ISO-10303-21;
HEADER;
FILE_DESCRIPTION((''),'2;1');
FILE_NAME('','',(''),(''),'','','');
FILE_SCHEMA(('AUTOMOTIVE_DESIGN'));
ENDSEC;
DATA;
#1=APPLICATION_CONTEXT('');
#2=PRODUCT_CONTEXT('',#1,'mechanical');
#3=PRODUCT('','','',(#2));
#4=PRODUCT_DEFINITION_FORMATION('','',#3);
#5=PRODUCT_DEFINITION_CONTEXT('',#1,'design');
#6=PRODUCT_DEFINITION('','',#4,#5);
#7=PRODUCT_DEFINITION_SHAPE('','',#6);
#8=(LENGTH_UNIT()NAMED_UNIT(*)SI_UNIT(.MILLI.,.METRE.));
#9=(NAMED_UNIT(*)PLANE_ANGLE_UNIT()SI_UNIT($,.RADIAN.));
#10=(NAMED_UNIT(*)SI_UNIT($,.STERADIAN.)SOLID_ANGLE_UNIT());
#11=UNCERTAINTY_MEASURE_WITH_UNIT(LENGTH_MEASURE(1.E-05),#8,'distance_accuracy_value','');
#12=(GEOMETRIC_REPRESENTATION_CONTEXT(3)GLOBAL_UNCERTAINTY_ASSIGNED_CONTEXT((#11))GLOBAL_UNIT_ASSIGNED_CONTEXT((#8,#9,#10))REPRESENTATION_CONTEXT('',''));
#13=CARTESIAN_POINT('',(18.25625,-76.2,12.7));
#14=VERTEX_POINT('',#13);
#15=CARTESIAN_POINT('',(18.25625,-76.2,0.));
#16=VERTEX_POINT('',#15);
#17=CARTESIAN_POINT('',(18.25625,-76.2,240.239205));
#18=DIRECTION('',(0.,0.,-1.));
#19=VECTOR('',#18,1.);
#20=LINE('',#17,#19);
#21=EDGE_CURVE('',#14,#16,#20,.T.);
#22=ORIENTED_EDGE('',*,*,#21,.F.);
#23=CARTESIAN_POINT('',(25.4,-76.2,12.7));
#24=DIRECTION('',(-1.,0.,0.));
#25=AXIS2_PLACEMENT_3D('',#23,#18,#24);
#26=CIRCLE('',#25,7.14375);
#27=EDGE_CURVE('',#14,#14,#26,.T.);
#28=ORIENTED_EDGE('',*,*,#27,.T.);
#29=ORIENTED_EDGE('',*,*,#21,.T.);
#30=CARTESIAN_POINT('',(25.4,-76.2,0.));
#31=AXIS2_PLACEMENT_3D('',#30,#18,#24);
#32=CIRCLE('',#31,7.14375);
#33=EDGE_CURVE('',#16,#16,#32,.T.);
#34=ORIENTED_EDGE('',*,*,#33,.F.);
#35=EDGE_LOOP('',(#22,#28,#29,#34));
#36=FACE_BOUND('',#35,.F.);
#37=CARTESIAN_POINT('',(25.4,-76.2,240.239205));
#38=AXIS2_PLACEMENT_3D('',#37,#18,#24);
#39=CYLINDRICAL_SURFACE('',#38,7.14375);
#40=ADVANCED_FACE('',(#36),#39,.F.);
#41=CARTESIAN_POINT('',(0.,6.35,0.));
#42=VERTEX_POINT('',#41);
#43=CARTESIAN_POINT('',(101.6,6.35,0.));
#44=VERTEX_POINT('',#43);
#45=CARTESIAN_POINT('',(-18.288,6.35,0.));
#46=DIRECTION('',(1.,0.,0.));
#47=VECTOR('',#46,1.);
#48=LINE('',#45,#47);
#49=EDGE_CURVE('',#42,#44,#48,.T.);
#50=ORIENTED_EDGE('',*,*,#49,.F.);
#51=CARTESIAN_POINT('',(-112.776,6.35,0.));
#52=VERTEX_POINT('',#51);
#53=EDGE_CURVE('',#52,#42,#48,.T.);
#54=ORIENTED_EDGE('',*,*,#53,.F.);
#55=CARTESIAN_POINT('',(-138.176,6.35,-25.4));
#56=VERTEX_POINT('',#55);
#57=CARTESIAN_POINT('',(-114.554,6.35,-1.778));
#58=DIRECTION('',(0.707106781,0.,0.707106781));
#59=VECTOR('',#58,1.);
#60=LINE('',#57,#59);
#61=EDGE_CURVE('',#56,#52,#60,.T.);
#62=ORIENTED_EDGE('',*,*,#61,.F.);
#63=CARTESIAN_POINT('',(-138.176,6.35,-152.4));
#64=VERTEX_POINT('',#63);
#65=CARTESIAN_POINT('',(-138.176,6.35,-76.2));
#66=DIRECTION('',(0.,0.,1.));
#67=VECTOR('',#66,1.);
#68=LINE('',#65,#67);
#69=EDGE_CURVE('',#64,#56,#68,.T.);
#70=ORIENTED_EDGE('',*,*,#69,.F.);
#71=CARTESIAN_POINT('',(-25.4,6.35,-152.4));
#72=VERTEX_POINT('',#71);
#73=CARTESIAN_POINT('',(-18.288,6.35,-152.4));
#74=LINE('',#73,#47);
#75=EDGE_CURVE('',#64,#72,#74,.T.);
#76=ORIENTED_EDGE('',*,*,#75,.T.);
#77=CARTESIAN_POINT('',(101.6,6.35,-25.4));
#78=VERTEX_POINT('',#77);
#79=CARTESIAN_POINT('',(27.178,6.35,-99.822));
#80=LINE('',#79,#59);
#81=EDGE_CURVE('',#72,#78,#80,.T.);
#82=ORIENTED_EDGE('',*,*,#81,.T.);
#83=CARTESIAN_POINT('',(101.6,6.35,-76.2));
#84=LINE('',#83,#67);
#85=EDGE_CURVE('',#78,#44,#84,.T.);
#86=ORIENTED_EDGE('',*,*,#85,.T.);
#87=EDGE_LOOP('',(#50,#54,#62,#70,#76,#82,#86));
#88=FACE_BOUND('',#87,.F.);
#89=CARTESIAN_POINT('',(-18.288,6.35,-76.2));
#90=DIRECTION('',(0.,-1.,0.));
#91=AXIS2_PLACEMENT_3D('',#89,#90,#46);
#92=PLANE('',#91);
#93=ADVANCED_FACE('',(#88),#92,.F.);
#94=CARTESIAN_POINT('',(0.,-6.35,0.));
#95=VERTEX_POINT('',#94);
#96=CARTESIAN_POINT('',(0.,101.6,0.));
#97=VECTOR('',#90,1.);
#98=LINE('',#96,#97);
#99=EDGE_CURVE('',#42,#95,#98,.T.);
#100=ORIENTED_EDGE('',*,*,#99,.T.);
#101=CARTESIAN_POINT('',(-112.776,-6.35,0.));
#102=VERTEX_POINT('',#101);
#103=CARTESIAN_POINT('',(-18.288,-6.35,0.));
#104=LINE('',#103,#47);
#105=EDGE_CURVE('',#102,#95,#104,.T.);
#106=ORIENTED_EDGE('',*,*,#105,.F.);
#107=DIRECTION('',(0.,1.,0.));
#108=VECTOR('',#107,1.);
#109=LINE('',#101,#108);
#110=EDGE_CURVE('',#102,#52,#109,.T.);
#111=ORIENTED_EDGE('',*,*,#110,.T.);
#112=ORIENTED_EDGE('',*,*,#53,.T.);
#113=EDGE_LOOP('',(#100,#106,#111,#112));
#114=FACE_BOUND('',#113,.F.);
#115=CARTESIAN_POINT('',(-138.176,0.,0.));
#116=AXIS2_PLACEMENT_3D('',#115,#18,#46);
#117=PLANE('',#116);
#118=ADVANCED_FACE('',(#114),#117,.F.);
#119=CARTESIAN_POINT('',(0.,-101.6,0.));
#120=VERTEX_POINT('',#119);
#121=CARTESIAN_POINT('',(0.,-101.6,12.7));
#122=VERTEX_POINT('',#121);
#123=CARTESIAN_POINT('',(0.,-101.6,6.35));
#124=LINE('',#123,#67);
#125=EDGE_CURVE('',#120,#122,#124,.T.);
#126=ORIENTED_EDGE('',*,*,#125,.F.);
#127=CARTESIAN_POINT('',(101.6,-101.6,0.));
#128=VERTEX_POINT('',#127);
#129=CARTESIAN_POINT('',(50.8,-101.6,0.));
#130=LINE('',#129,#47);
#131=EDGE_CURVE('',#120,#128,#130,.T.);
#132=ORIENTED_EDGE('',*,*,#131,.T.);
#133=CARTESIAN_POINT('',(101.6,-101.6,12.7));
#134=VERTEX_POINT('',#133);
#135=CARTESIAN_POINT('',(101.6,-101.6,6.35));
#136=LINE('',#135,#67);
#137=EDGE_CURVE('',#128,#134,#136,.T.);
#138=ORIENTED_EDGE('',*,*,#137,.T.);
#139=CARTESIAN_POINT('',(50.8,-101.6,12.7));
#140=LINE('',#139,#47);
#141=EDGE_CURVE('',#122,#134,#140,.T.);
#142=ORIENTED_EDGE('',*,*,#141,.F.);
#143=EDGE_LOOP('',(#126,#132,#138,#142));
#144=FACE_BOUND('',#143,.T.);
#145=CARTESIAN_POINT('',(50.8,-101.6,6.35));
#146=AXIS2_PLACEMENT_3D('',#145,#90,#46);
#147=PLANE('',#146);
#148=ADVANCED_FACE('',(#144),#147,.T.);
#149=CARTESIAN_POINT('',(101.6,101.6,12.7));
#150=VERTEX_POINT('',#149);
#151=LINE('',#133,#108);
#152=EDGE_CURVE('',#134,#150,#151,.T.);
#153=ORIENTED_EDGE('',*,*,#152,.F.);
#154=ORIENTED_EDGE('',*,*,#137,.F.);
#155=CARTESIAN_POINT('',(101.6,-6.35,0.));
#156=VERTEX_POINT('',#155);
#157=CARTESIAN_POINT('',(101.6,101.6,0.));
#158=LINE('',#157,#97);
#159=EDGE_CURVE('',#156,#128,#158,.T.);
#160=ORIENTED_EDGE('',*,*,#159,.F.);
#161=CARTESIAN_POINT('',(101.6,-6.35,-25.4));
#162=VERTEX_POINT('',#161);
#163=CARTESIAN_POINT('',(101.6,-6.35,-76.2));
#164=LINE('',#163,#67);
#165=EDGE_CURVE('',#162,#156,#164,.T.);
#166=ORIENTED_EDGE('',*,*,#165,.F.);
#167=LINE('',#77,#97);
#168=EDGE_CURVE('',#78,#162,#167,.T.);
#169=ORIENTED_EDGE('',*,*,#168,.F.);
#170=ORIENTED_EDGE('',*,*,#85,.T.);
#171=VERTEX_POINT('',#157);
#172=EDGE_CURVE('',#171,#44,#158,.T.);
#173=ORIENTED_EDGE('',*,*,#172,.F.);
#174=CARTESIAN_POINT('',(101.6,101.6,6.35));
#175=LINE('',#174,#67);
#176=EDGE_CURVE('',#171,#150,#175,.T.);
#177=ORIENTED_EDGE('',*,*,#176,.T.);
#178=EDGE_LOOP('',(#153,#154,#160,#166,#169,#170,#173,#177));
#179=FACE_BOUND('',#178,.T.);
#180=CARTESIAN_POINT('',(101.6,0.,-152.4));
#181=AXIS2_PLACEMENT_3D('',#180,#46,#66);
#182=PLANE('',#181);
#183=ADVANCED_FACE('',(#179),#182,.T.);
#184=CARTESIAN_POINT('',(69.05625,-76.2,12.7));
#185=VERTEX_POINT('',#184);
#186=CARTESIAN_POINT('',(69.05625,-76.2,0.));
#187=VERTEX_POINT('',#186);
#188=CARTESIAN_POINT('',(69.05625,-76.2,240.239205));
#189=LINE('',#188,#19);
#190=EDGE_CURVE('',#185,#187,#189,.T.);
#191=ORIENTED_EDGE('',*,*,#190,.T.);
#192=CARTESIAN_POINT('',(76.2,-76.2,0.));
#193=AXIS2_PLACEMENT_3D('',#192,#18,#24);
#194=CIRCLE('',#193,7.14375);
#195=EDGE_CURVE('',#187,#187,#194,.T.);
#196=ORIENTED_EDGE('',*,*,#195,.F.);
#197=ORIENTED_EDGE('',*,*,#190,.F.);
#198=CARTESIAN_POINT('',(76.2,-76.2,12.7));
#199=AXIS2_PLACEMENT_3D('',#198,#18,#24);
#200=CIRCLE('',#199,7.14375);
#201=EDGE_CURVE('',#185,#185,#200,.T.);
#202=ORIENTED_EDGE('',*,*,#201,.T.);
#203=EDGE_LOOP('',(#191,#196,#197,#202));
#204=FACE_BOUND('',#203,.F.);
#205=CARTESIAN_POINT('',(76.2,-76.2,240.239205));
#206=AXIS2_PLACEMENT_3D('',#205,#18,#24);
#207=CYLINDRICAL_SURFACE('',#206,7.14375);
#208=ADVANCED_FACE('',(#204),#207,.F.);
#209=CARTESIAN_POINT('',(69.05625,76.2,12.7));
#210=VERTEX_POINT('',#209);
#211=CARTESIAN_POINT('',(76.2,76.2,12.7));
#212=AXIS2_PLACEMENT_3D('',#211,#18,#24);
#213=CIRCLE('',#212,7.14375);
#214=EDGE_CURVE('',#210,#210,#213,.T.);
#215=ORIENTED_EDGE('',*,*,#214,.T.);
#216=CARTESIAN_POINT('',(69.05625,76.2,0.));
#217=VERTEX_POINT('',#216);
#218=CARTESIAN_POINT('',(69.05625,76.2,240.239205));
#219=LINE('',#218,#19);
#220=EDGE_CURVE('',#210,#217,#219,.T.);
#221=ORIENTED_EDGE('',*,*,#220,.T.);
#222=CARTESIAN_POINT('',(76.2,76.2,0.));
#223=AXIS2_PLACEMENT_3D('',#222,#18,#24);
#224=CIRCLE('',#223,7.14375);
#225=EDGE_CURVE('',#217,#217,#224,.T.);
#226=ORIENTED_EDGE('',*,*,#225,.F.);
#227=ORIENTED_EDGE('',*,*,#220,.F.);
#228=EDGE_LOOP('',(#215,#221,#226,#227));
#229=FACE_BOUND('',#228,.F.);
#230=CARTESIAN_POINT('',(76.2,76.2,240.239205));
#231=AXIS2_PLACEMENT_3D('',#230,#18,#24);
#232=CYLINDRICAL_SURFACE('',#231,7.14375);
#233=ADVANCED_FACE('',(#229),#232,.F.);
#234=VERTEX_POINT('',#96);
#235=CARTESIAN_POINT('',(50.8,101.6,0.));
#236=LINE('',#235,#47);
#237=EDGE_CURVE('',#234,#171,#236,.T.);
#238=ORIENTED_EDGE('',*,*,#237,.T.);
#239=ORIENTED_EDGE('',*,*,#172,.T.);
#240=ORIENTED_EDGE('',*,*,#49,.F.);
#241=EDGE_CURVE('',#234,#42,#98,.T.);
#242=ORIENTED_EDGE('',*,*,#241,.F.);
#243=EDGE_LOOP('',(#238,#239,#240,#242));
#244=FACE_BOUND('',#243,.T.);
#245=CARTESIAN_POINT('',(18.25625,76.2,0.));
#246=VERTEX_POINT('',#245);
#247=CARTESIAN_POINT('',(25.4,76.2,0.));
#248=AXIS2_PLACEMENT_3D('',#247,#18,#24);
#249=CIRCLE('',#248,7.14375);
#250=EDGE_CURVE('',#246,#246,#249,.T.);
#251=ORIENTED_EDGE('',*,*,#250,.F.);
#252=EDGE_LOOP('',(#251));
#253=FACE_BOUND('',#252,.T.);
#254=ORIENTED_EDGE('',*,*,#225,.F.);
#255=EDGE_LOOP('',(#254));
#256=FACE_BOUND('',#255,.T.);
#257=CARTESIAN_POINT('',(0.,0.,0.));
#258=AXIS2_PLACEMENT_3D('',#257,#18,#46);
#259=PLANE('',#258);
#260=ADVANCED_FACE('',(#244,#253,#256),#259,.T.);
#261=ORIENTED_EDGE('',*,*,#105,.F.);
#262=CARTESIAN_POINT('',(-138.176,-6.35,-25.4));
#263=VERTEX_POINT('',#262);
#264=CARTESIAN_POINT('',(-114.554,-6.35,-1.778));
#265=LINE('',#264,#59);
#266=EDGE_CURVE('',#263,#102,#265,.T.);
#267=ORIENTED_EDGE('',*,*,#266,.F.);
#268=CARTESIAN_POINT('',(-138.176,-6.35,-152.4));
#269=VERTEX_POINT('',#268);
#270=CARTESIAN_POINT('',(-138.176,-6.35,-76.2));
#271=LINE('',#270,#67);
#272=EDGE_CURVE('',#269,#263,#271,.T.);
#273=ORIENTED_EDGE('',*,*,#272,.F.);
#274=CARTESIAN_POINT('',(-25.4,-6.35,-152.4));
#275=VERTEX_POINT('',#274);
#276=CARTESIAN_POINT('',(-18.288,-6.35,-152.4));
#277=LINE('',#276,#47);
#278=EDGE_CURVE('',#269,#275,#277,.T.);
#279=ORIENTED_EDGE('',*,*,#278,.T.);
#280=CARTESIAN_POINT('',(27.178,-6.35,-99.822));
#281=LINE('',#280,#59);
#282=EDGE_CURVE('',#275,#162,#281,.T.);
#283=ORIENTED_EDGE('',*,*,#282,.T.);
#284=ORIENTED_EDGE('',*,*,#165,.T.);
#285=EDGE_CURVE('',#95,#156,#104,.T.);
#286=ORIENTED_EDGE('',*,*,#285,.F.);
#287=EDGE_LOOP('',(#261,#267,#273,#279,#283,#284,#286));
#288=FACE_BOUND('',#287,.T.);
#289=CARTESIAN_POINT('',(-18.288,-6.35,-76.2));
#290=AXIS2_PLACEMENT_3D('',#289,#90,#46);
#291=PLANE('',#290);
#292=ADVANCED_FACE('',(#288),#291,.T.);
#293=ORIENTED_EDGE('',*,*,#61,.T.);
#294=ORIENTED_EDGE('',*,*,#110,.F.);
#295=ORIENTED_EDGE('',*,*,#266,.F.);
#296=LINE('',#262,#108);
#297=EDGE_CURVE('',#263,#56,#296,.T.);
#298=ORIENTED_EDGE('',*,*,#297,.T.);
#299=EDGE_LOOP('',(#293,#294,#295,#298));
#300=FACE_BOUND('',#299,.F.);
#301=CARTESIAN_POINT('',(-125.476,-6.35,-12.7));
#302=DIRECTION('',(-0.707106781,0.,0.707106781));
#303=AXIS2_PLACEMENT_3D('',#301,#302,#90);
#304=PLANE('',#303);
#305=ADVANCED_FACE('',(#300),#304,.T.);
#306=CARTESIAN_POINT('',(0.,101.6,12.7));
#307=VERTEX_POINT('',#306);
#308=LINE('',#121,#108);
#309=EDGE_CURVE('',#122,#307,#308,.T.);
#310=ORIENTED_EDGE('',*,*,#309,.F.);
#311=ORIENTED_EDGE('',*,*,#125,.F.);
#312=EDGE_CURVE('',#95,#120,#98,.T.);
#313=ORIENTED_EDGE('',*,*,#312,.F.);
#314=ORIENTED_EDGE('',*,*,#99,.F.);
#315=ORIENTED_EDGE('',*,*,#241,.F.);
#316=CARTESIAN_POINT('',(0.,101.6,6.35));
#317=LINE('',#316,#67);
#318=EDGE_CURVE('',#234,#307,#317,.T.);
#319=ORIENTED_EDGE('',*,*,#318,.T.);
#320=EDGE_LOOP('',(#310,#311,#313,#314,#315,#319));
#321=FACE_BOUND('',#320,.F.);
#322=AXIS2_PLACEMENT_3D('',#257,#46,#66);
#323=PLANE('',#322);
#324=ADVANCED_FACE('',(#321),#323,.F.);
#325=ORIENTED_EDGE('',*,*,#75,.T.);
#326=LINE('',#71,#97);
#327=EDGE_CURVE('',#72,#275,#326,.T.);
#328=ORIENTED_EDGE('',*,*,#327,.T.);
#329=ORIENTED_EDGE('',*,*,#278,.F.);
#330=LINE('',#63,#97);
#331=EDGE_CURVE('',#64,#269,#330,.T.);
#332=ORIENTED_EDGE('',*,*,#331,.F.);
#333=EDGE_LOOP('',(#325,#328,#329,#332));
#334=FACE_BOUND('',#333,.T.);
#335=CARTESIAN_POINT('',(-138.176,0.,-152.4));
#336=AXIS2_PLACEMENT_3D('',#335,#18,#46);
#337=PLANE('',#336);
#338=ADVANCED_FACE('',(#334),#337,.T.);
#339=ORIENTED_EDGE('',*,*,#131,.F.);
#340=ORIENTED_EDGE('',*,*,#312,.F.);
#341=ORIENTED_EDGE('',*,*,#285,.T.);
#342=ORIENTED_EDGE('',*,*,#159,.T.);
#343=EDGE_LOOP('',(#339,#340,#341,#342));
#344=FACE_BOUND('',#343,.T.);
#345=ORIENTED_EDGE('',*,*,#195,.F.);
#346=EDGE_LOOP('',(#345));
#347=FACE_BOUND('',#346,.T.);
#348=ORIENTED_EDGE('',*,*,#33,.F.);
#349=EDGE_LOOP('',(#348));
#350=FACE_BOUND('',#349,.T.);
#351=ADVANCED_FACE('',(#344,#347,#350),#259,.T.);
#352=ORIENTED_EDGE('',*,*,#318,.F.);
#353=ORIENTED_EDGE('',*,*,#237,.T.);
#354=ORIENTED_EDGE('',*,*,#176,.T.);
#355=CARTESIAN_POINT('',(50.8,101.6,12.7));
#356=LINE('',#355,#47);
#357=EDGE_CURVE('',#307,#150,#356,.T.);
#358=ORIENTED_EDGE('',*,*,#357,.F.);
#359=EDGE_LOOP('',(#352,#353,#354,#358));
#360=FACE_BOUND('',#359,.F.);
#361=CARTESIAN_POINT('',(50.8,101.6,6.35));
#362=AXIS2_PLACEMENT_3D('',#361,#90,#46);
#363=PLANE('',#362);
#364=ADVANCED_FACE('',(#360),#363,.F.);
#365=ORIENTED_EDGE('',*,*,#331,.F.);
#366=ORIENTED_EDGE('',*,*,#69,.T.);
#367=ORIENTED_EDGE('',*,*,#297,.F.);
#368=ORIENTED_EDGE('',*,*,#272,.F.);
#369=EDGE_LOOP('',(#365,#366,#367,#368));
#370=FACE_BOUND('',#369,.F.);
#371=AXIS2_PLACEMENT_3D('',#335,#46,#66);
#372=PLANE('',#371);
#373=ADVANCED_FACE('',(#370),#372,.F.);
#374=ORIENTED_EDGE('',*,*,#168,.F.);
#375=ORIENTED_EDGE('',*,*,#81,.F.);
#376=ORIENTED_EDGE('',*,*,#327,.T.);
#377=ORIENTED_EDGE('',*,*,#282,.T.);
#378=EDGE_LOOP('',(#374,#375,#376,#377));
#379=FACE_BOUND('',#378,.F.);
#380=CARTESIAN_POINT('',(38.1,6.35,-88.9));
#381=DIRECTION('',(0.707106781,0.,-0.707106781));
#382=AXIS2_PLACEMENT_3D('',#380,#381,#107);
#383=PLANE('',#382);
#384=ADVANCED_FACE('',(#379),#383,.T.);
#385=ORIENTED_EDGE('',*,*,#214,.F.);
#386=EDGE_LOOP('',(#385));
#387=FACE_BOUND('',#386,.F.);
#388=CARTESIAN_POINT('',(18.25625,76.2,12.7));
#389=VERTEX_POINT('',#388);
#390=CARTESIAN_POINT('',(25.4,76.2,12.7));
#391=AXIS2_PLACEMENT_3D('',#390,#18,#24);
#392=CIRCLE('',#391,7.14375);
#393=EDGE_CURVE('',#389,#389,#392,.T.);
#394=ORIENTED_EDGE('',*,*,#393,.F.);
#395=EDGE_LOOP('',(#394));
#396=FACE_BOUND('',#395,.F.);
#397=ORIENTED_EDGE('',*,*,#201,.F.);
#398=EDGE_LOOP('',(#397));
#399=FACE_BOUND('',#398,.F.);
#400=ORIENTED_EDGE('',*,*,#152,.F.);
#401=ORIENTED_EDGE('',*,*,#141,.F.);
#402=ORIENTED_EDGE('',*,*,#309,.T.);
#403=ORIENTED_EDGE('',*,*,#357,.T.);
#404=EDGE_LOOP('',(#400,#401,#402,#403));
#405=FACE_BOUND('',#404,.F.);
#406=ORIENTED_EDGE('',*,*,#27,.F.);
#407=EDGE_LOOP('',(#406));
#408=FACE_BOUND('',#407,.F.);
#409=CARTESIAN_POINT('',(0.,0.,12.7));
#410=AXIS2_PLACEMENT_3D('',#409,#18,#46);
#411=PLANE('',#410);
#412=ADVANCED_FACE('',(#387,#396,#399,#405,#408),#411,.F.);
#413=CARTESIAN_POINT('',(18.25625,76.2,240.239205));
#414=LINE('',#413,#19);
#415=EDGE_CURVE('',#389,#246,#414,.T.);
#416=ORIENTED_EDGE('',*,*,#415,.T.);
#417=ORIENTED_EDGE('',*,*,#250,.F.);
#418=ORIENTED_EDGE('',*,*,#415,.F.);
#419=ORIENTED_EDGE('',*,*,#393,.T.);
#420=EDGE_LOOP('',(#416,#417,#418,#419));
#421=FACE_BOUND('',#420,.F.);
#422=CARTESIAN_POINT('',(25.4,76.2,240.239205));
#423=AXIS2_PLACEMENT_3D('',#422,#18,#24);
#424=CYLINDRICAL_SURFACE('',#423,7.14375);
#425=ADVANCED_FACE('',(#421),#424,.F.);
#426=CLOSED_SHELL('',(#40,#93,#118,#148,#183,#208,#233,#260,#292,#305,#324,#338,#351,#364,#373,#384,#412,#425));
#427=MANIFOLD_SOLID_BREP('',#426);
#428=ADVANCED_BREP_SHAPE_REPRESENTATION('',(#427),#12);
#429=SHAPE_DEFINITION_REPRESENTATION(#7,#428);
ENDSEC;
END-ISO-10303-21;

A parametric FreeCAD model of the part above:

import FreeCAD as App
import Part
import Sketcher
from FreeCAD import Vector
Q = App.Units.Quantity


def edges_at(feature, points):
    """Names of the edges that pass closest to the given points."""
    edges = feature.Shape.Edges
    near = lambda p: min(range(len(edges)), key=lambda i: edges[i].distToShape(Part.Vertex(*p))[0])
    return sorted({f"Edge{near(p) + 1}" for p in points})

doc = App.newDocument("Part")
body = doc.addObject("PartDesign::Body", "Body")

# Sketch on XZ plane
sketch1 = doc.addObject("Sketcher::SketchObject", "Sketch")
body.addObject(sketch1)
sketch1.AttachmentSupport = (doc.XZ_Plane, [""])
sketch1.MapMode = "FlatFace"
sketch1.addGeometry([
    Part.LineSegment(Vector(0, 13, 0), Vector(0, 0, 0)),
    Part.LineSegment(Vector(0, 0, 0), Vector(102, 0, 0)),
    Part.LineSegment(Vector(102, 0, 0), Vector(102, 13, 0)),
    Part.LineSegment(Vector(102, 13, 0), Vector(0, 13, 0)),
], False)
sketch1.addConstraint([
    Sketcher.Constraint("Coincident", 0, 2, 1, 1),
    Sketcher.Constraint("Coincident", 1, 2, 2, 1),
    Sketcher.Constraint("Coincident", 2, 2, 3, 1),
    Sketcher.Constraint("Coincident", 3, 2, 0, 1),
    Sketcher.Constraint("Vertical", 0),
    Sketcher.Constraint("Horizontal", 1),
    Sketcher.Constraint("Vertical", 2),
    Sketcher.Constraint("Horizontal", 3),
    Sketcher.Constraint("Coincident", 0, 2, -1, 1),
    Sketcher.Constraint("DistanceX", 1, 1, 1, 2, Q("4 in")),
    Sketcher.Constraint("DistanceY", 0, 2, 0, 1, Q("0.5 in")),
])
pad1 = doc.addObject("PartDesign::Pad", "Pad")
body.addObject(pad1)
pad1.Profile = sketch1
pad1.Length = Q("8 in")
pad1.Midplane = True

# Sketch on XY plane
sketch2 = doc.addObject("Sketcher::SketchObject", "Sketch001")
body.addObject(sketch2)
sketch2.AttachmentSupport = (doc.XY_Plane, [""])
sketch2.MapMode = "FlatFace"
sketch2.AttachmentOffset = App.Placement(Vector(0, 0, 0.5 * 25.4), App.Rotation())
sketch2.addGeometry([
    Part.Circle(Vector(25, -76, 0), Vector(0, 0, 1), 7),
    Part.Circle(Vector(76, -76, 0), Vector(0, 0, 1), 7),
    Part.Circle(Vector(76, 76, 0), Vector(0, 0, 1), 7),
    Part.Circle(Vector(25, 76, 0), Vector(0, 0, 1), 7),
], False)
sketch2.addConstraint([
    Sketcher.Constraint("Equal", 0, 1),
    Sketcher.Constraint("Equal", 1, 2),
    Sketcher.Constraint("Equal", 2, 3),
    Sketcher.Constraint("Symmetric", 1, 3, 2, 3, -1),
    Sketcher.Constraint("Symmetric", 0, 3, 3, 3, -1),
    Sketcher.Constraint("Horizontal", 0, 3, 1, 3),
    Sketcher.Constraint("Diameter", 0, Q("0.5625 in")),
    Sketcher.Constraint("DistanceX", -1, 1, 0, 3, Q("1 in")),
    Sketcher.Constraint("DistanceY", 0, 3, -1, 1, Q("3 in")),
    Sketcher.Constraint("DistanceX", -1, 1, 1, 3, Q("3 in")),
])
doc.recompute()
hole = doc.addObject("PartDesign::Hole", "Hole")
body.addObject(hole)
hole.Profile = sketch2
hole.ThreadType = "None"
hole.Diameter = Q("0.5625 in")
hole.DepthType = "ThroughAll"

# Sketch on XZ plane
sketch3 = doc.addObject("Sketcher::SketchObject", "Sketch002")
body.addObject(sketch3)
sketch3.AttachmentSupport = (doc.XZ_Plane, [""])
sketch3.MapMode = "FlatFace"
sketch3.addGeometry([
    Part.LineSegment(Vector(-138, 0, 0), Vector(-138, -152, 0)),
    Part.LineSegment(Vector(-138, -152, 0), Vector(102, -152, 0)),
    Part.LineSegment(Vector(102, -152, 0), Vector(102, 0, 0)),
    Part.LineSegment(Vector(102, 0, 0), Vector(-138, 0, 0)),
], False)
sketch3.addConstraint([
    Sketcher.Constraint("Coincident", 0, 2, 1, 1),
    Sketcher.Constraint("Coincident", 1, 2, 2, 1),
    Sketcher.Constraint("Coincident", 2, 2, 3, 1),
    Sketcher.Constraint("Coincident", 3, 2, 0, 1),
    Sketcher.Constraint("Vertical", 0),
    Sketcher.Constraint("Horizontal", 1),
    Sketcher.Constraint("Vertical", 2),
    Sketcher.Constraint("Horizontal", 3),
    Sketcher.Constraint("PointOnObject", 2, 2, -1),
    Sketcher.Constraint("DistanceY", 0, 2, 0, 1, Q("6 in")),
    Sketcher.Constraint("DistanceX", -1, 1, 1, 2, Q("4 in")),
    Sketcher.Constraint("DistanceX", 1, 1, 1, 2, Q("9.44 in")),
])
pad2 = doc.addObject("PartDesign::Pad", "Pad001")
body.addObject(pad2)
pad2.Profile = sketch3
pad2.Length = Q("0.5 in")
pad2.Midplane = True
doc.recompute()

chamfer = doc.addObject("PartDesign::Chamfer", "Chamfer")
body.addObject(chamfer)
chamfer.Base = (pad2, edges_at(pad2, [(-138.176, 0, 0)]))
chamfer.Size = Q("1 in")
doc.recompute()

chamfer2 = doc.addObject("PartDesign::Chamfer", "Chamfer001")
body.addObject(chamfer2)
chamfer2.Base = (chamfer, edges_at(chamfer, [(101.6, 0, -152.4)]))
chamfer2.Size = Q("5 in")

doc.recompute()
